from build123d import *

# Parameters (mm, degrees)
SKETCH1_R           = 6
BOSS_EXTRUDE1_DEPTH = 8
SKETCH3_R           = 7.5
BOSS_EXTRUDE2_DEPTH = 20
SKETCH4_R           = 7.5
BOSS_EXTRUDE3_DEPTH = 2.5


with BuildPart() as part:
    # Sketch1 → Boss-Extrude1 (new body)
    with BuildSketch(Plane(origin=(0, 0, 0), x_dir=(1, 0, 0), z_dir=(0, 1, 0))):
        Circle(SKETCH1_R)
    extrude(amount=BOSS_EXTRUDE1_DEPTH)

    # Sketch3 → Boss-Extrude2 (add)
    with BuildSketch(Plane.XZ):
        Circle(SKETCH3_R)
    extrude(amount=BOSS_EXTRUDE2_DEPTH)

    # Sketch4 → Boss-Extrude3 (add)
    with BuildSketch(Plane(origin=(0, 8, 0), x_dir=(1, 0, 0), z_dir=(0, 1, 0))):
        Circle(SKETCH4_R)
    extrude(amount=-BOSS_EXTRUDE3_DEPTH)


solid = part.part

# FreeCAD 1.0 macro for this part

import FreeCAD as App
import Part
import Sketcher
Q = App.Units.Quantity

doc = App.newDocument("Part")
body = doc.addObject("PartDesign::Body", "Body")

sketch1 = body.newObject("Sketcher::SketchObject", "Sketch")
sketch1.AttachmentSupport = (doc.getObject("XZ_Plane"), [""])
sketch1.MapMode = "FlatFace"
sketch1.addGeometry(Part.Circle(App.Vector(0, 0, 0), App.Vector(0, 0, 1), 6), False)
sketch1.addConstraint([
    Sketcher.Constraint("Coincident", 0, 3, -1, 1),
    Sketcher.Constraint("Diameter", 0, Q("12 mm")),
])
pad1 = body.newObject("PartDesign::Pad", "Pad")
pad1.Profile = sketch1
pad1.Length = 8
pad1.Reversed = True

sketch2 = body.newObject("Sketcher::SketchObject", "Sketch001")
sketch2.AttachmentSupport = (doc.getObject("XZ_Plane"), [""])
sketch2.MapMode = "FlatFace"
sketch2.addGeometry(Part.Circle(App.Vector(0, 0, 0), App.Vector(0, 0, 1), 7.5), False)
sketch2.addConstraint([
    Sketcher.Constraint("Coincident", 0, 3, -1, 1),
    Sketcher.Constraint("Diameter", 0, Q("15 mm")),
])
pad2 = body.newObject("PartDesign::Pad", "Pad001")
pad2.Profile = sketch2
pad2.Length = 20

sketch3 = body.newObject("Sketcher::SketchObject", "Sketch002")
sketch3.AttachmentSupport = (doc.getObject("XZ_Plane"), [""])
sketch3.MapMode = "FlatFace"
sketch3.AttachmentOffset = App.Placement(App.Vector(0, 0, -8), App.Rotation())
sketch3.addGeometry(Part.Circle(App.Vector(0, 0, 0), App.Vector(0, 0, 1), 7.5), False)
sketch3.addConstraint([
    Sketcher.Constraint("Coincident", 0, 3, -1, 1),
    Sketcher.Constraint("Diameter", 0, Q("15 mm")),
])
pad3 = body.newObject("PartDesign::Pad", "Pad002")
pad3.Profile = sketch3
pad3.Length = 2.5

doc.recompute()
